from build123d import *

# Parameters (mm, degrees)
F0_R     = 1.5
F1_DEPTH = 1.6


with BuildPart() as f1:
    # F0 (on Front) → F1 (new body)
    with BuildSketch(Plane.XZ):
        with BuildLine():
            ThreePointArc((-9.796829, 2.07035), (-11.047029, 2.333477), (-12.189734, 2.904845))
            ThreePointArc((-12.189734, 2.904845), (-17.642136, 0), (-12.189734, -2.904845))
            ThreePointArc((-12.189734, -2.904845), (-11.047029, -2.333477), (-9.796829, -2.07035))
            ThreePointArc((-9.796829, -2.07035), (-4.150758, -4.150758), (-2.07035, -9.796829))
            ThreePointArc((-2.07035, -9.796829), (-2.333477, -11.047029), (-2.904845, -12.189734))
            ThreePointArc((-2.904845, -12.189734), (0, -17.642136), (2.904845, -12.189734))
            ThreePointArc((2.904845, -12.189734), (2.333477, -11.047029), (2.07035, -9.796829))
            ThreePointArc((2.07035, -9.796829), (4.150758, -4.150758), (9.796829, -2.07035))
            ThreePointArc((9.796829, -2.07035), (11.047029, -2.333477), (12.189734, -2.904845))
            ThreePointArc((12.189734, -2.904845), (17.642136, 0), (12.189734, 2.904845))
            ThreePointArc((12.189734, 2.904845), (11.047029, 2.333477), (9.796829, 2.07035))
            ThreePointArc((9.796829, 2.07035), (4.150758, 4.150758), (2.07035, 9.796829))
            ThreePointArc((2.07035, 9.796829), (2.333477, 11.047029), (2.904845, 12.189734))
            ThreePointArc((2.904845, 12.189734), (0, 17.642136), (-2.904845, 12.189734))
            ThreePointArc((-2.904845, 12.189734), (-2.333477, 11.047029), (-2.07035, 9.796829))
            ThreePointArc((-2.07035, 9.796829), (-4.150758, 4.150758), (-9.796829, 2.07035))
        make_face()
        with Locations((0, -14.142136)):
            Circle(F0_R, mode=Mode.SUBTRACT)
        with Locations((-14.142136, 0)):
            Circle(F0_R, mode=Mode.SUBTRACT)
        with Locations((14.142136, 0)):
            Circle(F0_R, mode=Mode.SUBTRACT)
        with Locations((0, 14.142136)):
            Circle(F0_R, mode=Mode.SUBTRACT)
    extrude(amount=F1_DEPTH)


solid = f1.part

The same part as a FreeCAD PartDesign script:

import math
import FreeCAD as App
import Part
import Sketcher
from FreeCAD import Vector

doc = App.newDocument("Part")
params = doc.addObject("Spreadsheet::Sheet", "Params")
for row, (alias, value) in enumerate([
    ("sketch1_diameter", "3 mm"),
    ("sketch1_radius", "5.000002 mm"),
    ("sketch1_radius2", "3.5 mm"),
    ("pad1_length", "1.6 mm"),
], start=1):
    params.set(f"A{row}", alias)
    params.set(f"B{row}", "=" + value)
    params.setAlias(f"B{row}", alias)

body = doc.addObject("PartDesign::Body", "Body")

# Sketch on XZ plane
sketch1 = body.newObject("Sketcher::SketchObject", "Sketch")
sketch1.AttachmentSupport = (doc.getObject("XZ_Plane"), [""])
sketch1.MapMode = "FlatFace"
sketch1.addGeometry([
    Part.ArcOfCircle(Part.Circle(Vector(-9.4, 7.1, 0), Vector(0, 0, 1), 5), math.radians(-124), math.radians(-95)),  # 0
    Part.ArcOfCircle(Part.Circle(Vector(-14.1, 0, 0), Vector(0, 0, 1), 3.5), math.radians(56), math.radians(304)),  # 1
    Part.ArcOfCircle(Part.Circle(Vector(-9.4, -7.1, 0), Vector(0, 0, 1), 5), math.radians(95), math.radians(124)),  # 2
    Part.ArcOfCircle(Part.Circle(Vector(-9.2, -9.2, 0), Vector(0, 0, 1), 7.2), math.radians(-5), math.radians(95)),  # 3
    Part.ArcOfCircle(Part.Circle(Vector(-7.1, -9.4, 0), Vector(0, 0, 1), 5), math.radians(-34), math.radians(-5)),  # 4
    Part.ArcOfCircle(Part.Circle(Vector(0, -14.1, 0), Vector(0, 0, 1), 3.5), math.radians(146), math.radians(394)),  # 5
    Part.ArcOfCircle(Part.Circle(Vector(7.1, -9.4, 0), Vector(0, 0, 1), 5), math.radians(-175), math.radians(-146)),  # 6
    Part.ArcOfCircle(Part.Circle(Vector(9.2, -9.2, 0), Vector(0, 0, 1), 7.2), math.radians(85), math.radians(185)),  # 7
    Part.ArcOfCircle(Part.Circle(Vector(9.4, -7.1, 0), Vector(0, 0, 1), 5), math.radians(56), math.radians(85)),  # 8
    Part.ArcOfCircle(Part.Circle(Vector(14.1, 0, 0), Vector(0, 0, 1), 3.5), math.radians(-124), math.radians(124)),  # 9
    Part.ArcOfCircle(Part.Circle(Vector(9.4, 7.1, 0), Vector(0, 0, 1), 5), math.radians(-85), math.radians(-56)),  # 10
    Part.ArcOfCircle(Part.Circle(Vector(9.2, 9.2, 0), Vector(0, 0, 1), 7.2), math.radians(175), math.radians(275)),  # 11
    Part.ArcOfCircle(Part.Circle(Vector(7.1, 9.4, 0), Vector(0, 0, 1), 5), math.radians(146), math.radians(175)),  # 12
    Part.ArcOfCircle(Part.Circle(Vector(0, 14.1, 0), Vector(0, 0, 1), 3.5), math.radians(-34), math.radians(214)),  # 13
    Part.ArcOfCircle(Part.Circle(Vector(-7.1, 9.4, 0), Vector(0, 0, 1), 5), math.radians(5), math.radians(34)),  # 14
    Part.ArcOfCircle(Part.Circle(Vector(-9.2, 9.2, 0), Vector(0, 0, 1), 7.2), math.radians(-95), math.radians(5)),  # 15
    Part.Circle(Vector(0, -14.1, 0), Vector(0, 0, 1), 1.5),  # 16
    Part.Circle(Vector(-14.1, 0, 0), Vector(0, 0, 1), 1.5),  # 17
    Part.Circle(Vector(14.1, 0, 0), Vector(0, 0, 1), 1.5),  # 18
    Part.Circle(Vector(0, 14.1, 0), Vector(0, 0, 1), 1.5),  # 19
], False)
sketch1.addConstraint([
    Sketcher.Constraint("Tangent", 0, 1, 1, 1),
    Sketcher.Constraint("Tangent", 1, 2, 2, 2),
    Sketcher.Constraint("Tangent", 2, 1, 3, 2),
    Sketcher.Constraint("Tangent", 3, 1, 4, 2),
    Sketcher.Constraint("Tangent", 4, 1, 5, 1),
    Sketcher.Constraint("Tangent", 5, 2, 6, 2),
    Sketcher.Constraint("Tangent", 6, 1, 7, 2),
    Sketcher.Constraint("Tangent", 7, 1, 8, 2),
    Sketcher.Constraint("Tangent", 8, 1, 9, 1),
    Sketcher.Constraint("Tangent", 9, 2, 10, 2),
    Sketcher.Constraint("Tangent", 10, 1, 11, 2),
    Sketcher.Constraint("Tangent", 11, 1, 12, 2),
    Sketcher.Constraint("Tangent", 12, 1, 13, 1),
    Sketcher.Constraint("Tangent", 13, 2, 14, 2),
    Sketcher.Constraint("Tangent", 14, 1, 15, 2),
    Sketcher.Constraint("Tangent", 15, 1, 0, 2),
    Sketcher.Constraint("Coincident", 16, 3, 5, 3),
    Sketcher.Constraint("Coincident", 17, 3, 1, 3),
    Sketcher.Constraint("Coincident", 18, 3, 9, 3),
    Sketcher.Constraint("Coincident", 19, 3, 13, 3),
    Sketcher.Constraint("Equal", 0, 2),
    Sketcher.Constraint("Equal", 2, 4),
    Sketcher.Constraint("Equal", 1, 5),
    Sketcher.Constraint("Equal", 4, 6),
    Sketcher.Constraint("Equal", 3, 7),
    Sketcher.Constraint("Equal", 6, 8),
    Sketcher.Constraint("Equal", 5, 9),
    Sketcher.Constraint("Equal", 8, 10),
    Sketcher.Constraint("Equal", 7, 11),
    Sketcher.Constraint("Equal", 10, 12),
    Sketcher.Constraint("Equal", 9, 13),
    Sketcher.Constraint("Equal", 12, 14),
    Sketcher.Constraint("Equal", 11, 15),
    Sketcher.Constraint("Equal", 16, 17),
    Sketcher.Constraint("Equal", 17, 18),
    Sketcher.Constraint("Equal", 18, 19),
    Sketcher.Constraint("Symmetric", 0, 3, 8, 3, -1, 1),
    Sketcher.Constraint("Symmetric", 2, 3, 10, 3, -1, 1),
    Sketcher.Constraint("Symmetric", 4, 3, 12, 3, -1, 1),
    Sketcher.Constraint("Symmetric", 6, 3, 14, 3, -1, 1),
    Sketcher.Constraint("Symmetric", 4, 3, 6, 3, -2),
    Sketcher.Constraint("Symmetric", 2, 3, 8, 3, -2),
    Sketcher.Constraint("Diameter", 16, 3.0),
    Sketcher.Constraint("Radius", 0, 5.000002),
    Sketcher.Constraint("Radius", 1, 3.5),
    Sketcher.Constraint("Radius", 3, 7.180056),
    Sketcher.Constraint("DistanceX", 3, 1, 6, 1, 4.1407),
    Sketcher.Constraint("DistanceY", 7, 1, 10, 1, 4.1407),
    Sketcher.Constraint("DistanceX", 0, 3, -1, 1, 9.400589),
    Sketcher.Constraint("DistanceY", 4, 3, -1, 1, 9.400589),
])
sketch1.setExpression("Constraints[42]", "Params.sketch1_diameter")
sketch1.setExpression("Constraints[43]", "Params.sketch1_radius")
sketch1.setExpression("Constraints[44]", "Params.sketch1_radius2")
pad1 = body.newObject("PartDesign::Pad", "Pad")
pad1.Profile = sketch1
pad1.setExpression("Length", "Params.pad1_length")

doc.recompute()
